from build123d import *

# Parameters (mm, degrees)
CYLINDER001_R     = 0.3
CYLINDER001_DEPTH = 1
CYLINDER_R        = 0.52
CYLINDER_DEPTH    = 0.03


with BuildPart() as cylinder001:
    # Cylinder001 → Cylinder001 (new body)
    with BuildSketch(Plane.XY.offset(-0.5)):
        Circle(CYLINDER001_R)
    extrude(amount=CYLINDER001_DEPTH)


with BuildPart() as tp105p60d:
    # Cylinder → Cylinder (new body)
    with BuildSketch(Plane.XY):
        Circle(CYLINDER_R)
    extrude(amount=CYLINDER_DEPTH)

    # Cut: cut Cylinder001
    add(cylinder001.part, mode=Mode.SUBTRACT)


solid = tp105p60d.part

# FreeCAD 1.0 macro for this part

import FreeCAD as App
import Part
import Sketcher

doc = App.newDocument("Part")
body = doc.addObject("PartDesign::Body", "Body")

# Sketch on XY plane
sketch1 = doc.addObject("Sketcher::SketchObject", "Sketch")
body.addObject(sketch1)
sketch1.AttachmentSupport = (doc.XY_Plane, [""])
sketch1.MapMode = "FlatFace"
sketch1.AttachmentOffset = App.Placement(App.Vector(0, 0, -0.5), App.Rotation())
sketch1.addGeometry(Part.Circle(App.Vector(0, 0, 0), App.Vector(0, 0, 1), 0.3), False)
sketch1.addConstraint(Sketcher.Constraint("Coincident", 0, 3, -1, 1))
sketch1.addConstraint(Sketcher.Constraint("Diameter", 0, 0.6))
pad1 = doc.addObject("PartDesign::Pad", "Pad")
body.addObject(pad1)
pad1.Profile = sketch1
pad1.Length = 1
body2 = doc.addObject("PartDesign::Body", "Body001")

# Sketch on XY plane
sketch2 = doc.addObject("Sketcher::SketchObject", "Sketch001")
body2.addObject(sketch2)
sketch2.AttachmentSupport = (doc.getObject("XY_Plane001"), [""])
sketch2.MapMode = "FlatFace"
sketch2.addGeometry(Part.Circle(App.Vector(0, 0, 0), App.Vector(0, 0, 1), 0.5), False)
sketch2.addConstraint(Sketcher.Constraint("Coincident", 0, 3, -1, 1))
sketch2.addConstraint(Sketcher.Constraint("Diameter", 0, 1.04))
pad2 = doc.addObject("PartDesign::Pad", "Pad001")
body2.addObject(pad2)
pad2.Profile = sketch2
pad2.Length = 0.03
doc.recompute()

boolean = doc.addObject("PartDesign::Boolean", "Boolean")
body2.addObject(boolean)
boolean.Type = "Cut"
boolean.addObjects([body])

doc.recompute()
